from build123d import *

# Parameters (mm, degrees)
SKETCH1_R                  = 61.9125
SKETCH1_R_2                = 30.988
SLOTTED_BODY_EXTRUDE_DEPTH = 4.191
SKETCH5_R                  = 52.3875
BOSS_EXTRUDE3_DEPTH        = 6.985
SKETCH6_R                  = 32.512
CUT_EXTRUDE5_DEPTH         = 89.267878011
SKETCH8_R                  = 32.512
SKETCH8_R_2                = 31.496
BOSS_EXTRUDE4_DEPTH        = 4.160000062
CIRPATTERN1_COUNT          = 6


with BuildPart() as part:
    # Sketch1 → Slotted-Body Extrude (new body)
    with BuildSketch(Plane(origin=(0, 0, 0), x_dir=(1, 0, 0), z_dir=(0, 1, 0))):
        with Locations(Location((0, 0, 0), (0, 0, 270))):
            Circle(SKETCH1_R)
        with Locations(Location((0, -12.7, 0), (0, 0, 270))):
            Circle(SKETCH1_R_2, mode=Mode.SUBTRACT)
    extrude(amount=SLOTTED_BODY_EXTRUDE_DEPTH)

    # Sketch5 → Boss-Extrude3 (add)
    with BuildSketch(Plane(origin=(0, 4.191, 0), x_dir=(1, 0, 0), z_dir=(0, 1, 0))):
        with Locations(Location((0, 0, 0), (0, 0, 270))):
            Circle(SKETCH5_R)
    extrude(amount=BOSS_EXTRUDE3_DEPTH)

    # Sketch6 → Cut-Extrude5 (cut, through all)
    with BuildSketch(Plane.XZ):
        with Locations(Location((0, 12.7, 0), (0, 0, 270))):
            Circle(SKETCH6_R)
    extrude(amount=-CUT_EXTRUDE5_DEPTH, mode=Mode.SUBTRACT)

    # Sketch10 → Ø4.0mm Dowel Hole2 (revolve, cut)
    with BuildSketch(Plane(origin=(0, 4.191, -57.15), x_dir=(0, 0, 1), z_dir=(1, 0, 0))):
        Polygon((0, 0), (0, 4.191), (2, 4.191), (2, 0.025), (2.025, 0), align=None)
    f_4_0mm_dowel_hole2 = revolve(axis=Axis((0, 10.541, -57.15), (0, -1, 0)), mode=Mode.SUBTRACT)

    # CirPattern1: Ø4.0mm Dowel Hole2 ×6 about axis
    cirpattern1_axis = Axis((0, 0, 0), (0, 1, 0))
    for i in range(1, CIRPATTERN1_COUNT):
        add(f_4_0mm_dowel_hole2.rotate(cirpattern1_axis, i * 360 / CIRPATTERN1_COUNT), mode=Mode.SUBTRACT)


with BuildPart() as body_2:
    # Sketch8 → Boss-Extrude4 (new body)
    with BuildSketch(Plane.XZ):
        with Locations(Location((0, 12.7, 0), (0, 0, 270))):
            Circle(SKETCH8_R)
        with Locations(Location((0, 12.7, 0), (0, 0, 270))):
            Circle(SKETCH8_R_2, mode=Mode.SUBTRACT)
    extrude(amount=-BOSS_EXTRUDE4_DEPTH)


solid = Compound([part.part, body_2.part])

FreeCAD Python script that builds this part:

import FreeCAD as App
import Part
import Sketcher

V = App.Vector
Q = App.Units.Quantity

doc = App.newDocument("Part")
body = doc.addObject("PartDesign::Body", "Body")

sketch1 = body.newObject("Sketcher::SketchObject", "Sketch")
sketch1.AttachmentSupport = (doc.getObject("XZ_Plane"), [""])
sketch1.MapMode = "FlatFace"
sketch1.addGeometry(Part.Circle(V(0, 0, 0), V(0, 0, 1), 62), False)
sketch1.addGeometry(Part.Circle(V(0, 13, 0), V(0, 0, 1), 31), False)
sketch1.addConstraint(Sketcher.Constraint("Coincident", 0, 3, -1, 1))
sketch1.addConstraint(Sketcher.Constraint("PointOnObject", 1, 3, -2))
sketch1.addConstraint(Sketcher.Constraint("Diameter", 1, Q("2.44 in")))
sketch1.addConstraint(Sketcher.Constraint("Diameter", 0, Q("4.875 in")))
sketch1.addConstraint(Sketcher.Constraint("DistanceY", -1, 1, 1, 3, Q("0.5 in")))
pad1 = body.newObject("PartDesign::Pad", "Pad")
pad1.Profile = sketch1
pad1.Length = Q("0.165 in")
pad1.Reversed = True

sketch2 = body.newObject("Sketcher::SketchObject", "Sketch001")
sketch2.AttachmentSupport = (doc.getObject("XZ_Plane"), [""])
sketch2.MapMode = "FlatFace"
sketch2.AttachmentOffset = App.Placement(V(0, 0, -0.165 * 25.4), App.Rotation())
sketch2.addGeometry(Part.Circle(V(0, 0, 0), V(0, 0, 1), 52), False)
sketch2.addConstraint(Sketcher.Constraint("Coincident", 0, 3, -1, 1))
sketch2.addConstraint(Sketcher.Constraint("Diameter", 0, Q("4.125 in")))
pad2 = body.newObject("PartDesign::Pad", "Pad001")
pad2.Profile = sketch2
pad2.Length = Q("0.275 in")
pad2.Reversed = True

sketch3 = body.newObject("Sketcher::SketchObject", "Sketch002")
sketch3.AttachmentSupport = (doc.getObject("XZ_Plane"), [""])
sketch3.MapMode = "FlatFace"
sketch3.addGeometry(Part.Circle(V(0, 13, 0), V(0, 0, 1), 33), False)
sketch3.addConstraint(Sketcher.Constraint("PointOnObject", 0, 3, -2))
sketch3.addConstraint(Sketcher.Constraint("Diameter", 0, Q("2.56 in")))
sketch3.addConstraint(Sketcher.Constraint("DistanceY", -1, 1, 0, 3, Q("0.5 in")))
pocket1 = body.newObject("PartDesign::Pocket", "Pocket")
pocket1.Profile = sketch3
pocket1.Type = "ThroughAll"

sketch4 = body.newObject("Sketcher::SketchObject", "Sketch003")
sketch4.AttachmentSupport = (doc.getObject("YZ_Plane"), [""])
sketch4.MapMode = "FlatFace"
sketch4.addGeometry(Part.LineSegment(V(0, -57.15, 0), V(4.191, -57.15, 0)), False)
sketch4.addGeometry(Part.LineSegment(V(4.191, -57.15, 0), V(4.191, -55.125, 0)), False)
sketch4.addGeometry(Part.LineSegment(V(4.191, -55.125, 0), V(4.166, -55.15, 0)), False)
sketch4.addGeometry(Part.LineSegment(V(4.166, -55.15, 0), V(0, -55.15, 0)), False)
sketch4.addGeometry(Part.LineSegment(V(0, -55.15, 0), V(0, -57.15, 0)), False)
sketch4.addGeometry(Part.LineSegment(V(4.191, -57.15, 0), V(0, -57.15, 0)), True)
sketch4.addConstraint(Sketcher.Constraint("Coincident", 0, 2, 1, 1))
sketch4.addConstraint(Sketcher.Constraint("Coincident", 1, 2, 2, 1))
sketch4.addConstraint(Sketcher.Constraint("Coincident", 2, 2, 3, 1))
sketch4.addConstraint(Sketcher.Constraint("Coincident", 3, 2, 4, 1))
sketch4.addConstraint(Sketcher.Constraint("Coincident", 4, 2, 0, 1))
sketch4.addConstraint(Sketcher.Constraint("Horizontal", 0))
sketch4.addConstraint(Sketcher.Constraint("Vertical", 1))
sketch4.addConstraint(Sketcher.Constraint("Horizontal", 3))
sketch4.addConstraint(Sketcher.Constraint("Vertical", 4))
sketch4.addConstraint(Sketcher.Constraint("Horizontal", 5))
sketch4.addConstraint(Sketcher.Constraint("Coincident", 5, 1, 0, 2))
sketch4.addConstraint(Sketcher.Constraint("PointOnObject", 3, 2, -2))
sketch4.addConstraint(Sketcher.Constraint("PointOnObject", 5, 2, -2))
sketch4.addConstraint(Sketcher.Constraint("Angle", 2, Q("-135 deg")))
sketch4.addConstraint(Sketcher.Constraint("DistanceX", 0, 1, 0, 2, Q("0.165 in")))
sketch4.addConstraint(Sketcher.Constraint("DistanceY", 0, 2, -1, 1, Q("2.25 in")))
sketch4.addConstraint(Sketcher.Constraint("DistanceX", 3, 2, 3, 1, Q("4.166 mm")))
sketch4.addConstraint(Sketcher.Constraint("DistanceY", 1, 1, 1, 2, Q("2.025 mm")))
groove = body.newObject("PartDesign::Groove", "Groove")
groove.Profile = sketch4
groove.ReferenceAxis = (sketch4, ["Axis0"])
groove.Angle = 360
doc.recompute()

polarpattern = body.newObject("PartDesign::PolarPattern", "PolarPattern")
polarpattern.Originals = [groove]
polarpattern.Axis = (doc.getObject("Y_Axis"), [""])
polarpattern.Angle = 360
polarpattern.Occurrences = 6
body.Tip = polarpattern
body2 = doc.addObject("PartDesign::Body", "Body001")

sketch5 = body2.newObject("Sketcher::SketchObject", "Sketch004")
sketch5.AttachmentSupport = (doc.getObject("XZ_Plane001"), [""])
sketch5.MapMode = "FlatFace"
sketch5.addGeometry(Part.Circle(V(0, 13, 0), V(0, 0, 1), 33), False)
sketch5.addGeometry(Part.Circle(V(0, 13, 0), V(0, 0, 1), 31), False)
sketch5.addConstraint(Sketcher.Constraint("Coincident", 1, 3, 0, 3))
sketch5.addConstraint(Sketcher.Constraint("PointOnObject", 0, 3, -2))
sketch5.addConstraint(Sketcher.Constraint("Diameter", 0, Q("2.56 in")))
sketch5.addConstraint(Sketcher.Constraint("Diameter", 1, Q("2.48 in")))
sketch5.addConstraint(Sketcher.Constraint("DistanceY", -1, 1, 0, 3, Q("0.5 in")))
pad3 = body2.newObject("PartDesign::Pad", "Pad002")
pad3.Profile = sketch5
pad3.Length = 4.16
pad3.Reversed = True

doc.recompute()
